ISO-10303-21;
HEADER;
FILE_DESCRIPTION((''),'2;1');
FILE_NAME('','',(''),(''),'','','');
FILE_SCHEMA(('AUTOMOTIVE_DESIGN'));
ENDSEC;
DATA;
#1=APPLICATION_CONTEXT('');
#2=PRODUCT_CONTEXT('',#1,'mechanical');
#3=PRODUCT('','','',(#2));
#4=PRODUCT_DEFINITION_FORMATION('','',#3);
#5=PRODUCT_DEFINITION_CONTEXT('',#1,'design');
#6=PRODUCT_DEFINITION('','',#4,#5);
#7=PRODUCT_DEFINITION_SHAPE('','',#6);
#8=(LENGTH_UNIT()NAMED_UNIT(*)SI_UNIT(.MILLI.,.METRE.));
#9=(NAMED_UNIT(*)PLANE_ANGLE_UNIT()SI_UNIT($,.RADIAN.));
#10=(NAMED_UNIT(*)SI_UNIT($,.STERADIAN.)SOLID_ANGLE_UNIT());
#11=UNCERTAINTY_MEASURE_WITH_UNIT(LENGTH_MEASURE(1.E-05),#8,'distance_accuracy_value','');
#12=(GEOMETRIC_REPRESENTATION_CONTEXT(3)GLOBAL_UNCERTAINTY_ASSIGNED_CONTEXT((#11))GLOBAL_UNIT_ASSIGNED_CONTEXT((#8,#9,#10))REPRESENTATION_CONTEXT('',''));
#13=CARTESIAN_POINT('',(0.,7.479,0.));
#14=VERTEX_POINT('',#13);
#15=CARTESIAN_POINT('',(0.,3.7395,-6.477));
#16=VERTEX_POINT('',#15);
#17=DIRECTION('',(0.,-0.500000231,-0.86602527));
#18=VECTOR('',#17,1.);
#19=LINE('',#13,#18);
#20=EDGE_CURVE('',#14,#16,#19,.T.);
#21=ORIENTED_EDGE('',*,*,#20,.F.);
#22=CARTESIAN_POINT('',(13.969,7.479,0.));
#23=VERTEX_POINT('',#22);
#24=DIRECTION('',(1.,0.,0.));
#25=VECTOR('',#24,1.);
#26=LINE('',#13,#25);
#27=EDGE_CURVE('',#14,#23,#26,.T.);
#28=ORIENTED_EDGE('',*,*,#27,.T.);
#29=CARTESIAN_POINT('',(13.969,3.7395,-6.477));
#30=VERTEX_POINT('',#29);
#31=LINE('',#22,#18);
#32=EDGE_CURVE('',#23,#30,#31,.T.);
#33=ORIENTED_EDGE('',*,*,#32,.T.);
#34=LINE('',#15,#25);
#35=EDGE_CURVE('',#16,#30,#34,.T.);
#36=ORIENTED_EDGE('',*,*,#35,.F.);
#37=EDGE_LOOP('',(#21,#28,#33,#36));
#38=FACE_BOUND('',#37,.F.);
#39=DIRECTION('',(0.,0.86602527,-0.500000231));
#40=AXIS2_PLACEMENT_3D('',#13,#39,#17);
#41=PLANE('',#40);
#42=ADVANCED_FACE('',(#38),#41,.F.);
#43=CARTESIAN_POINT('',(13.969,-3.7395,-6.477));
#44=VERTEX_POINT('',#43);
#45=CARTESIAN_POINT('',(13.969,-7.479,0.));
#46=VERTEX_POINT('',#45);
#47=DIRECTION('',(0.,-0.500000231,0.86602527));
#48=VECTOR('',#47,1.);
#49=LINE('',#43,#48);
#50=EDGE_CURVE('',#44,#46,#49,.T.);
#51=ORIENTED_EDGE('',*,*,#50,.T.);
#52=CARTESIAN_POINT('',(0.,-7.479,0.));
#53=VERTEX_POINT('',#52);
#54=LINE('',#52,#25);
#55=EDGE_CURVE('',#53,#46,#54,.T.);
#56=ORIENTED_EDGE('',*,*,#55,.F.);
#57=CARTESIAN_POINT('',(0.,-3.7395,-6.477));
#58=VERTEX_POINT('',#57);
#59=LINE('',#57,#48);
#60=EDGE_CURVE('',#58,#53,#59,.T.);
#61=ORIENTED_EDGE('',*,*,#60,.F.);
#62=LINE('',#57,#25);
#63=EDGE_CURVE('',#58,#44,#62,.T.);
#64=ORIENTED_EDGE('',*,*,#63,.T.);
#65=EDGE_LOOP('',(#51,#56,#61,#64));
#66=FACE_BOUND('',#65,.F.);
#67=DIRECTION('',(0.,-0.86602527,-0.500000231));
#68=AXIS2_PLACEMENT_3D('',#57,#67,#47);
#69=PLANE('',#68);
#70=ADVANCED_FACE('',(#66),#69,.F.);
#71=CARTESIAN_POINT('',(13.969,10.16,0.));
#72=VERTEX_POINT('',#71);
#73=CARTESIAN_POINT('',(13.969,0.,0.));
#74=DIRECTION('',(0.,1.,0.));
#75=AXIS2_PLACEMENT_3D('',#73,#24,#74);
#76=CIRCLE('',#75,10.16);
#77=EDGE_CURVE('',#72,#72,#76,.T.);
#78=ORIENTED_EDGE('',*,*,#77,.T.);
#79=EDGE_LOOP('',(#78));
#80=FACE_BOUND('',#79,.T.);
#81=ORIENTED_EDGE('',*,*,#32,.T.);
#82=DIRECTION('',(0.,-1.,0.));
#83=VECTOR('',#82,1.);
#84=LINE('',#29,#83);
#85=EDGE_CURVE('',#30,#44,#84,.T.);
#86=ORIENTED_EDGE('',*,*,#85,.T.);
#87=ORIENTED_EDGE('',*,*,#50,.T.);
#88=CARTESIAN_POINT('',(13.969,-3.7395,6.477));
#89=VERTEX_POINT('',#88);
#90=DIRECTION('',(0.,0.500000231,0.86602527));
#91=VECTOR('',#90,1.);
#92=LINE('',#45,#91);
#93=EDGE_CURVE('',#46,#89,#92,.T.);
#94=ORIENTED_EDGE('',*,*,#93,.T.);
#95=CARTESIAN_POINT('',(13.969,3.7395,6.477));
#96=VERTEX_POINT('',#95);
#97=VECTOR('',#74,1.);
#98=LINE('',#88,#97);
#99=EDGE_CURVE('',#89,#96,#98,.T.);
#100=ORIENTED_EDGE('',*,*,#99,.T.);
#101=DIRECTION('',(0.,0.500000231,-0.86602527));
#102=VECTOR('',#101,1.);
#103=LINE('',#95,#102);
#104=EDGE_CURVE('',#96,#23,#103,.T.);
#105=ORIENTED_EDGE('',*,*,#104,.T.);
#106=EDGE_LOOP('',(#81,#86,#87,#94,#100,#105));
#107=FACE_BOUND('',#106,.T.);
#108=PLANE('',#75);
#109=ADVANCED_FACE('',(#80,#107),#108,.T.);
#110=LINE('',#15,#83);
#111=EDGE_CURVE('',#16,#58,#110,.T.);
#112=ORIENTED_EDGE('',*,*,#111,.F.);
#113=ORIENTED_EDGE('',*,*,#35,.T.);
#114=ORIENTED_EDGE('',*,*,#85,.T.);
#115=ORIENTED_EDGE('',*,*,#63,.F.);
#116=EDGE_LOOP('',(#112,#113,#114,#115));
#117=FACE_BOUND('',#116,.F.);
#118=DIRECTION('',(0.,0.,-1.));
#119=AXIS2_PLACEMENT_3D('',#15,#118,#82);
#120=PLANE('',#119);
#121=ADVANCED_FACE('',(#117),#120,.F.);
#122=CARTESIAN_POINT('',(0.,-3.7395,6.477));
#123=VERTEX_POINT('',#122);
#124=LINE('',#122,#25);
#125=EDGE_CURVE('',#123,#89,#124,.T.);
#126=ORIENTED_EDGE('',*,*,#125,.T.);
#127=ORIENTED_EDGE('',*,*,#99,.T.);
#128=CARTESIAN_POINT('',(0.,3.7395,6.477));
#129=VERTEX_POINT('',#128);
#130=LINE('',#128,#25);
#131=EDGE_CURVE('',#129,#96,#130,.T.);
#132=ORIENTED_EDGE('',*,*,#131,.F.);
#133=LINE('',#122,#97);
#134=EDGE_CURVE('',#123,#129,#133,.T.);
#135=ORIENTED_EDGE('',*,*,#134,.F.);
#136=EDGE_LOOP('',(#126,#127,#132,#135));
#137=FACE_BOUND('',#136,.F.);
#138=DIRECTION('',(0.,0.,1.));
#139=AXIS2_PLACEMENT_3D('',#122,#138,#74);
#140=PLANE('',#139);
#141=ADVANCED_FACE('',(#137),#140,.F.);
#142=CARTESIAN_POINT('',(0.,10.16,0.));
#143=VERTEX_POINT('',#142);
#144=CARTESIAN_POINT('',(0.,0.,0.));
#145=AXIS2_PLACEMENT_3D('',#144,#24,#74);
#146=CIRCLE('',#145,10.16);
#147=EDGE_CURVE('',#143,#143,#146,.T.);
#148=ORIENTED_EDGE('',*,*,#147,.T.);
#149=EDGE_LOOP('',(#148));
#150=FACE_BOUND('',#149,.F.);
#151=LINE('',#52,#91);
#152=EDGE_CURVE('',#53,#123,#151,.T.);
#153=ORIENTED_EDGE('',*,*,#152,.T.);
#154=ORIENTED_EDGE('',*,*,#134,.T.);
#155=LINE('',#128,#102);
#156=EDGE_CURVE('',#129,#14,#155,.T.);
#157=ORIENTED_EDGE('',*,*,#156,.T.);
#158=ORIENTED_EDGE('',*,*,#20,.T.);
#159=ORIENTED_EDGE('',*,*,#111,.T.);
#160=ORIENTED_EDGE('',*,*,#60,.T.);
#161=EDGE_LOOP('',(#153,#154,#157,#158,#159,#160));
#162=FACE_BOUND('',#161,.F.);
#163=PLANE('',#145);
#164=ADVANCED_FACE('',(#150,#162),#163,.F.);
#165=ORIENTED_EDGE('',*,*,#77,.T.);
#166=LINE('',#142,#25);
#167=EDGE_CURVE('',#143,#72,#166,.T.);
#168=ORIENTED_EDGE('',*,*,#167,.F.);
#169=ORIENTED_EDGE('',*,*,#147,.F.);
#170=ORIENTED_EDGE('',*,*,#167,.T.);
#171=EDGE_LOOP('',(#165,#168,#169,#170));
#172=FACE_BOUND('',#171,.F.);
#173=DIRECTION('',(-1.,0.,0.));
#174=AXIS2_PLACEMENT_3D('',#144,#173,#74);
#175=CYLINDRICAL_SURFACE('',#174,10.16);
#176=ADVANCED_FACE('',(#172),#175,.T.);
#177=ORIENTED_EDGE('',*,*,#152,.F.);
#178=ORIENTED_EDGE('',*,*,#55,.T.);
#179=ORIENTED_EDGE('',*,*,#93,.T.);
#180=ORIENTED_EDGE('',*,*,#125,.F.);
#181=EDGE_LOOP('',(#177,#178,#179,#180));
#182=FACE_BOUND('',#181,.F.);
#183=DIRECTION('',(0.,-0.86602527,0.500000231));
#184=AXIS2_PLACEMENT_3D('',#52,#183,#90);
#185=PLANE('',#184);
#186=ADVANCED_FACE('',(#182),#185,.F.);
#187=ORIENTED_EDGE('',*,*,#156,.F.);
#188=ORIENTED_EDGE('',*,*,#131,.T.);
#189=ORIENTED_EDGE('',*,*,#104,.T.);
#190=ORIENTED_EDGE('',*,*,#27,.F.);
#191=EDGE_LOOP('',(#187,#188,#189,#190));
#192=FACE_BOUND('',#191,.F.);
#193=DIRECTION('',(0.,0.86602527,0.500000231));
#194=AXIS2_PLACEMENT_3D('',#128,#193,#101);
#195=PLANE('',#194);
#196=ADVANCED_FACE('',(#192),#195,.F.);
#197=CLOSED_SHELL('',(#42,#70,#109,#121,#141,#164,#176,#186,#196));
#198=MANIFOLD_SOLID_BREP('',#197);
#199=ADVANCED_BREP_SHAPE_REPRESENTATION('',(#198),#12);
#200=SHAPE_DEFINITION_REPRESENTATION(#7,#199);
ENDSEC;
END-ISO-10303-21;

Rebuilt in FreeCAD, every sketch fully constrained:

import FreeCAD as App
import Part
import Sketcher
from FreeCAD import Vector
Q = App.Units.Quantity


def add_polygon(sketch, points):
    """Adds a closed chain of lines whose ends are joined by coincident constraints."""
    first, n = sketch.GeometryCount, len(points)
    for a, b in zip(points, points[1:] + points[:1]):
        sketch.addGeometry(Part.LineSegment(App.Vector(*a, 0), App.Vector(*b, 0)), False)
    for i in range(n):
        sketch.addConstraint(Sketcher.Constraint("Coincident", first + i, 2, first + (i + 1) % n, 1))

doc = App.newDocument("Part")
body = doc.addObject("PartDesign::Body", "Body")

# Sketch on YZ plane
sketch1 = body.newObject("Sketcher::SketchObject", "Sketch")
sketch1.AttachmentSupport = (doc.getObject("YZ_Plane"), [""])
sketch1.MapMode = "FlatFace"
sketch1.addGeometry(Part.Circle(Vector(0, 0, 0), Vector(0, 0, 1), 10.16), False)  # 0
add_polygon(sketch1, [(7.479, 0), (3.7395, -6.477), (-3.7395, -6.477), (-7.479, 0), (-3.7395, 6.477), (3.7395, 6.477)])  # lines 1-6
sketch1.addConstraint(Sketcher.Constraint("Horizontal", 2))
sketch1.addConstraint(Sketcher.Constraint("Horizontal", 5))
sketch1.addConstraint(Sketcher.Constraint("Coincident", 0, 3, -1, 1))
sketch1.addConstraint(Sketcher.Constraint("Symmetric", 1, 2, 4, 2, -1, 1))
sketch1.addConstraint(Sketcher.Constraint("Symmetric", 3, 2, 6, 2, -1, 1))
sketch1.addConstraint(Sketcher.Constraint("PointOnObject", 3, 2, -1))
sketch1.addConstraint(Sketcher.Constraint("Parallel", 3, 6))
sketch1.addConstraint(Sketcher.Constraint("Vertical", 2, 2, 4, 2))
sketch1.addConstraint(Sketcher.Constraint("Diameter", 0, Q("0.8 in")))
sketch1.addConstraint(Sketcher.Constraint("DistanceY", 2, 2, 4, 2, Q("0.51 in")))
sketch1.addConstraint(Sketcher.Constraint("Angle", 1, Q("-120 deg")))
sketch1.addConstraint(Sketcher.Constraint("DistanceX", 2, 2, 2, 1, 7.479))
pad1 = body.newObject("PartDesign::Pad", "Pad")
pad1.Profile = sketch1
pad1.Length = 13.969

doc.recompute()
